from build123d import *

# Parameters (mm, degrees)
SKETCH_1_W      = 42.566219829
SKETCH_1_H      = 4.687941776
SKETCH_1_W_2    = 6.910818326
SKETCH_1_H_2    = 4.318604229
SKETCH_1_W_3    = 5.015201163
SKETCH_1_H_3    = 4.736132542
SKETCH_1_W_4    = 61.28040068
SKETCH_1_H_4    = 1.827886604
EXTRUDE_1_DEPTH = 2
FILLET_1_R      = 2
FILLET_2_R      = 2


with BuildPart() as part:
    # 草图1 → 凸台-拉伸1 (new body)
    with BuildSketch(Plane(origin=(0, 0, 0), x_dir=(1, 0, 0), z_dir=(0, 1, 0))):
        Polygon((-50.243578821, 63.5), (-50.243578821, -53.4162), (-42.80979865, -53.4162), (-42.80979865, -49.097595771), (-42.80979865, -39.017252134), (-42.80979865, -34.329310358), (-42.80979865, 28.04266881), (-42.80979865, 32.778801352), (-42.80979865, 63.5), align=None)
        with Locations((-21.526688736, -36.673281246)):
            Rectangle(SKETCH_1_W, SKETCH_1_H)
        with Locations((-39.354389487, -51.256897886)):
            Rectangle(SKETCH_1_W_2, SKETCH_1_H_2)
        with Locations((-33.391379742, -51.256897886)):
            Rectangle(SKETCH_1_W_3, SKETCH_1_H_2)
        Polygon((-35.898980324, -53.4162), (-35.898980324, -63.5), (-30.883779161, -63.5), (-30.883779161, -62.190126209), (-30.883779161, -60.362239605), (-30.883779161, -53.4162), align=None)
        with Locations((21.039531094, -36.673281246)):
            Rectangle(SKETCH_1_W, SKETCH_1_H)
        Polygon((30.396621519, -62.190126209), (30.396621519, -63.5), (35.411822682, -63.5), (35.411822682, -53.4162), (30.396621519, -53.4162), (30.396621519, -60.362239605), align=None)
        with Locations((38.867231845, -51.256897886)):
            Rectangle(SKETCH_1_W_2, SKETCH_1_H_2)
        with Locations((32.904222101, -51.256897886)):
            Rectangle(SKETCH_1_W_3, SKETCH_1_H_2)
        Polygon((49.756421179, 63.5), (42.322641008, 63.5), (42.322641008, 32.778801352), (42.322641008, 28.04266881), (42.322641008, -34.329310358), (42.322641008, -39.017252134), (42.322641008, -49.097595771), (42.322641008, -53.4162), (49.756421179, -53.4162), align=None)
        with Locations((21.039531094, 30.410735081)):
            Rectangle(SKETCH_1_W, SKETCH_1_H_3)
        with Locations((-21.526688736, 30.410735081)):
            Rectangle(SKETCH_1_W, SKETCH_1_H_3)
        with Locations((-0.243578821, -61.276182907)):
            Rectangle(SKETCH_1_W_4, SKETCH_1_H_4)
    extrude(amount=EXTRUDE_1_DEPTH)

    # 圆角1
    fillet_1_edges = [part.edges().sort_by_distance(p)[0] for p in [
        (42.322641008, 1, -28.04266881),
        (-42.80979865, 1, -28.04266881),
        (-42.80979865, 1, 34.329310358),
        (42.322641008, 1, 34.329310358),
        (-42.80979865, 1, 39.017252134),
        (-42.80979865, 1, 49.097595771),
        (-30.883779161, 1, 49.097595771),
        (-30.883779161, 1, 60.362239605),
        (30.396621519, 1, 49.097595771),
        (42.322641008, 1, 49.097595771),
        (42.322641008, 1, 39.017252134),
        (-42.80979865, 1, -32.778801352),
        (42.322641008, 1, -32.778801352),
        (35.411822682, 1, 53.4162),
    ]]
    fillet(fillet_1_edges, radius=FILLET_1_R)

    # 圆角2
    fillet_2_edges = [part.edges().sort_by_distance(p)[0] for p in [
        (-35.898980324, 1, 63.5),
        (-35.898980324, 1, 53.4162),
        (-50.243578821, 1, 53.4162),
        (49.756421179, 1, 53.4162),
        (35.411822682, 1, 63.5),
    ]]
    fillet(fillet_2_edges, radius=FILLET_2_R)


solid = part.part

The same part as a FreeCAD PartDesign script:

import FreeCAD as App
import Part
import Sketcher

V = App.Vector
Q = App.Units.Quantity


def edges_at(feature, points):
    """Names of the edges that pass closest to the given points."""
    edges = feature.Shape.Edges
    near = lambda p: min(range(len(edges)), key=lambda i: edges[i].distToShape(Part.Vertex(*p))[0])
    return sorted({f"Edge{near(p) + 1}" for p in points})

doc = App.newDocument("Part")
body = doc.addObject("PartDesign::Body", "Body")

sketch1 = body.newObject("Sketcher::SketchObject", "Sketch")
sketch1.AttachmentSupport = (doc.getObject("XZ_Plane"), [""])
sketch1.MapMode = "FlatFace"
sketch1.addGeometry(Part.LineSegment(V(-50.2, -63.5, 0), V(-50.2, 53.4, 0)), False)
sketch1.addGeometry(Part.LineSegment(V(-50.2, 53.4, 0), V(-42.8, 53.4, 0)), False)
sketch1.addGeometry(Part.LineSegment(V(-42.8, 53.4, 0), V(-35.9, 53.4, 0)), False)
sketch1.addGeometry(Part.LineSegment(V(-35.9, 53.4, 0), V(-35.9, 63.5, 0)), False)
sketch1.addGeometry(Part.LineSegment(V(-35.9, 63.5, 0), V(-30.9, 63.5, 0)), False)
sketch1.addGeometry(Part.LineSegment(V(-30.9, 63.5, 0), V(-30.9, 62.2, 0)), False)
sketch1.addGeometry(Part.LineSegment(V(-30.9, 62.2, 0), V(30.4, 62.2, 0)), False)
sketch1.addGeometry(Part.LineSegment(V(30.4, 62.2, 0), V(30.4, 63.5, 0)), False)
sketch1.addGeometry(Part.LineSegment(V(30.4, 63.5, 0), V(35.4, 63.5, 0)), False)
sketch1.addGeometry(Part.LineSegment(V(35.4, 63.5, 0), V(35.4, 53.4, 0)), False)
sketch1.addGeometry(Part.LineSegment(V(35.4, 53.4, 0), V(42.3, 53.4, 0)), False)
sketch1.addGeometry(Part.LineSegment(V(42.3, 53.4, 0), V(49.8, 53.4, 0)), False)
sketch1.addGeometry(Part.LineSegment(V(49.8, 53.4, 0), V(49.8, -63.5, 0)), False)
sketch1.addGeometry(Part.LineSegment(V(49.8, -63.5, 0), V(42.3, -63.5, 0)), False)
sketch1.addGeometry(Part.LineSegment(V(42.3, -63.5, 0), V(42.3, -32.8, 0)), False)
sketch1.addGeometry(Part.LineSegment(V(42.3, -32.8, 0), V(-42.8, -32.8, 0)), False)
sketch1.addGeometry(Part.LineSegment(V(-42.8, -32.8, 0), V(-42.8, -63.5, 0)), False)
sketch1.addGeometry(Part.LineSegment(V(-42.8, -63.5, 0), V(-50.2, -63.5, 0)), False)
sketch1.addGeometry(Part.LineSegment(V(-30.9, 60.4, 0), V(-30.9, 53.4, 0)), False)
sketch1.addGeometry(Part.LineSegment(V(-30.9, 53.4, 0), V(-30.9, 49.1, 0)), False)
sketch1.addGeometry(Part.LineSegment(V(-30.9, 49.1, 0), V(-42.8, 49.1, 0)), False)
sketch1.addGeometry(Part.LineSegment(V(-42.8, 49.1, 0), V(-42.8, 39, 0)), False)
sketch1.addGeometry(Part.LineSegment(V(-42.8, 39, 0), V(42.3, 39, 0)), False)
sketch1.addGeometry(Part.LineSegment(V(42.3, 39, 0), V(42.3, 49.1, 0)), False)
sketch1.addGeometry(Part.LineSegment(V(42.3, 49.1, 0), V(30.4, 49.1, 0)), False)
sketch1.addGeometry(Part.LineSegment(V(30.4, 49.1, 0), V(30.4, 53.4, 0)), False)
sketch1.addGeometry(Part.LineSegment(V(30.4, 53.4, 0), V(30.4, 60.4, 0)), False)
sketch1.addGeometry(Part.LineSegment(V(30.4, 60.4, 0), V(-30.9, 60.4, 0)), False)
sketch1.addGeometry(Part.LineSegment(V(42.3, -28, 0), V(42.3, 34.3, 0)), False)
sketch1.addGeometry(Part.LineSegment(V(42.3, 34.3, 0), V(-42.8, 34.3, 0)), False)
sketch1.addGeometry(Part.LineSegment(V(-42.8, 34.3, 0), V(-42.8, -28, 0)), False)
sketch1.addGeometry(Part.LineSegment(V(-42.8, -28, 0), V(42.3, -28, 0)), False)
sketch1.addConstraint(Sketcher.Constraint("Coincident", 0, 2, 1, 1))
sketch1.addConstraint(Sketcher.Constraint("Coincident", 1, 2, 2, 1))
sketch1.addConstraint(Sketcher.Constraint("Coincident", 2, 2, 3, 1))
sketch1.addConstraint(Sketcher.Constraint("Coincident", 3, 2, 4, 1))
sketch1.addConstraint(Sketcher.Constraint("Coincident", 4, 2, 5, 1))
sketch1.addConstraint(Sketcher.Constraint("Coincident", 5, 2, 6, 1))
sketch1.addConstraint(Sketcher.Constraint("Coincident", 6, 2, 7, 1))
sketch1.addConstraint(Sketcher.Constraint("Coincident", 7, 2, 8, 1))
sketch1.addConstraint(Sketcher.Constraint("Coincident", 8, 2, 9, 1))
sketch1.addConstraint(Sketcher.Constraint("Coincident", 9, 2, 10, 1))
sketch1.addConstraint(Sketcher.Constraint("Coincident", 10, 2, 11, 1))
sketch1.addConstraint(Sketcher.Constraint("Coincident", 11, 2, 12, 1))
sketch1.addConstraint(Sketcher.Constraint("Coincident", 12, 2, 13, 1))
sketch1.addConstraint(Sketcher.Constraint("Coincident", 13, 2, 14, 1))
sketch1.addConstraint(Sketcher.Constraint("Coincident", 14, 2, 15, 1))
sketch1.addConstraint(Sketcher.Constraint("Coincident", 15, 2, 16, 1))
sketch1.addConstraint(Sketcher.Constraint("Coincident", 16, 2, 17, 1))
sketch1.addConstraint(Sketcher.Constraint("Coincident", 17, 2, 0, 1))
sketch1.addConstraint(Sketcher.Constraint("Coincident", 18, 2, 19, 1))
sketch1.addConstraint(Sketcher.Constraint("Coincident", 19, 2, 20, 1))
sketch1.addConstraint(Sketcher.Constraint("Coincident", 20, 2, 21, 1))
sketch1.addConstraint(Sketcher.Constraint("Coincident", 21, 2, 22, 1))
sketch1.addConstraint(Sketcher.Constraint("Coincident", 22, 2, 23, 1))
sketch1.addConstraint(Sketcher.Constraint("Coincident", 23, 2, 24, 1))
sketch1.addConstraint(Sketcher.Constraint("Coincident", 24, 2, 25, 1))
sketch1.addConstraint(Sketcher.Constraint("Coincident", 25, 2, 26, 1))
sketch1.addConstraint(Sketcher.Constraint("Coincident", 26, 2, 27, 1))
sketch1.addConstraint(Sketcher.Constraint("Coincident", 27, 2, 18, 1))
sketch1.addConstraint(Sketcher.Constraint("Coincident", 28, 2, 29, 1))
sketch1.addConstraint(Sketcher.Constraint("Coincident", 29, 2, 30, 1))
sketch1.addConstraint(Sketcher.Constraint("Coincident", 30, 2, 31, 1))
sketch1.addConstraint(Sketcher.Constraint("Coincident", 31, 2, 28, 1))
sketch1.addConstraint(Sketcher.Constraint("Vertical", 0))
sketch1.addConstraint(Sketcher.Constraint("Horizontal", 1))
sketch1.addConstraint(Sketcher.Constraint("Horizontal", 2))
sketch1.addConstraint(Sketcher.Constraint("Vertical", 3))
sketch1.addConstraint(Sketcher.Constraint("Horizontal", 4))
sketch1.addConstraint(Sketcher.Constraint("Vertical", 5))
sketch1.addConstraint(Sketcher.Constraint("Horizontal", 6))
sketch1.addConstraint(Sketcher.Constraint("Vertical", 7))
sketch1.addConstraint(Sketcher.Constraint("Horizontal", 8))
sketch1.addConstraint(Sketcher.Constraint("Vertical", 9))
sketch1.addConstraint(Sketcher.Constraint("Horizontal", 10))
sketch1.addConstraint(Sketcher.Constraint("Horizontal", 11))
sketch1.addConstraint(Sketcher.Constraint("Vertical", 12))
sketch1.addConstraint(Sketcher.Constraint("Horizontal", 13))
sketch1.addConstraint(Sketcher.Constraint("Vertical", 14))
sketch1.addConstraint(Sketcher.Constraint("Horizontal", 15))
sketch1.addConstraint(Sketcher.Constraint("Vertical", 16))
sketch1.addConstraint(Sketcher.Constraint("Horizontal", 17))
sketch1.addConstraint(Sketcher.Constraint("Vertical", 18))
sketch1.addConstraint(Sketcher.Constraint("Vertical", 19))
sketch1.addConstraint(Sketcher.Constraint("Horizontal", 20))
sketch1.addConstraint(Sketcher.Constraint("Vertical", 21))
sketch1.addConstraint(Sketcher.Constraint("Horizontal", 22))
sketch1.addConstraint(Sketcher.Constraint("Vertical", 23))
sketch1.addConstraint(Sketcher.Constraint("Horizontal", 24))
sketch1.addConstraint(Sketcher.Constraint("Vertical", 25))
sketch1.addConstraint(Sketcher.Constraint("Vertical", 26))
sketch1.addConstraint(Sketcher.Constraint("Horizontal", 27))
sketch1.addConstraint(Sketcher.Constraint("Vertical", 28))
sketch1.addConstraint(Sketcher.Constraint("Horizontal", 29))
sketch1.addConstraint(Sketcher.Constraint("Vertical", 30))
sketch1.addConstraint(Sketcher.Constraint("Horizontal", 31))
sketch1.addConstraint(Sketcher.Constraint("Horizontal", 4, 2, 7, 2))
sketch1.addConstraint(Sketcher.Constraint("Horizontal", 2, 2, 9, 2))
sketch1.addConstraint(Sketcher.Constraint("Horizontal", 13, 2, 16, 2))
sketch1.addConstraint(Sketcher.Constraint("Horizontal", 11, 2, 18, 2))
sketch1.addConstraint(Sketcher.Constraint("Horizontal", 20, 2, 23, 2))
sketch1.addConstraint(Sketcher.Constraint("Horizontal", 18, 2, 25, 2))
sketch1.addConstraint(Sketcher.Constraint("Vertical", 10, 2, 13, 2))
sketch1.addConstraint(Sketcher.Constraint("Vertical", 1, 2, 15, 2))
sketch1.addConstraint(Sketcher.Constraint("Vertical", 5, 2, 18, 2))
sketch1.addConstraint(Sketcher.Constraint("Vertical", 16, 2, 20, 2))
sketch1.addConstraint(Sketcher.Constraint("Vertical", 14, 2, 22, 2))
sketch1.addConstraint(Sketcher.Constraint("Vertical", 7, 2, 24, 2))
sketch1.addConstraint(Sketcher.Constraint("Vertical", 23, 2, 28, 2))
sketch1.addConstraint(Sketcher.Constraint("Vertical", 21, 2, 29, 2))
sketch1.addConstraint(Sketcher.Constraint("Equal", 4, 8))
sketch1.addConstraint(Sketcher.Constraint("Equal", 2, 10))
sketch1.addConstraint(Sketcher.Constraint("Equal", 1, 11))
sketch1.addConstraint(Sketcher.Constraint("DistanceY", 12, 2, 8, 2, Q("5 in")))
sketch1.addConstraint(Sketcher.Constraint("DistanceY", -1, 1, 3, 2, Q("2.5 in")))
sketch1.addConstraint(Sketcher.Constraint("DistanceY", 0, 1, 0, 2, Q("4.603 in")))
sketch1.addConstraint(Sketcher.Constraint("DistanceX", 4, 1, 4, 2, Q("5.015201 mm")))
sketch1.addConstraint(Sketcher.Constraint("DistanceX", 6, 1, 6, 2, Q("61.280401 mm")))
sketch1.addConstraint(Sketcher.Constraint("DistanceY", 14, 1, 14, 2, Q("30.721199 mm")))
sketch1.addConstraint(Sketcher.Constraint("DistanceX", 1, 1, 1, 2, Q("7.43378 mm")))
sketch1.addConstraint(Sketcher.Constraint("DistanceX", 2, 1, 2, 2, Q("6.910818 mm")))
sketch1.addConstraint(Sketcher.Constraint("DistanceY", 18, 2, 18, 1, Q("6.94604 mm")))
sketch1.addConstraint(Sketcher.Constraint("DistanceY", 28, 1, 28, 2, Q("62.371979 mm")))
sketch1.addConstraint(Sketcher.Constraint("DistanceX", 1, 2, -1, 1, Q("42.809799 mm")))
sketch1.addConstraint(Sketcher.Constraint("DistanceY", 5, 2, 5, 1, Q("1.309874 mm")))
sketch1.addConstraint(Sketcher.Constraint("DistanceY", 19, 2, 19, 1, Q("4.318604 mm")))
sketch1.addConstraint(Sketcher.Constraint("DistanceY", 21, 2, 21, 1, Q("10.080344 mm")))
sketch1.addConstraint(Sketcher.Constraint("DistanceY", -1, 1, 28, 2, Q("34.32931 mm")))
pad1 = body.newObject("PartDesign::Pad", "Pad")
pad1.Profile = sketch1
pad1.Length = 2
pad1.Reversed = True
doc.recompute()

fillet = body.newObject("PartDesign::Fillet", "Fillet")
fillet.Base = (pad1, edges_at(pad1, [
    (42.323, 1, -28.043),
    (-42.81, 1, -28.043),
    (-42.81, 1, 34.329),
    (42.323, 1, 34.329),
    (-42.81, 1, 39.017),
    (-42.81, 1, 49.098),
    (-30.884, 1, 49.098),
    (-30.884, 1, 60.362),
    (30.397, 1, 49.098),
    (42.323, 1, 49.098),
    (42.323, 1, 39.017),
    (-42.81, 1, -32.779),
    (42.323, 1, -32.779),
    (35.412, 1, 53.416),
]))
fillet.Radius = 2
doc.recompute()

fillet2 = body.newObject("PartDesign::Fillet", "Fillet001")
fillet2.Base = (fillet, edges_at(fillet, [
    (-35.899, 1, 63.5),
    (-35.899, 1, 53.416),
    (-50.244, 1, 53.416),
    (49.756, 1, 53.416),
    (35.412, 1, 63.5),
]))
fillet2.Radius = 2

doc.recompute()
